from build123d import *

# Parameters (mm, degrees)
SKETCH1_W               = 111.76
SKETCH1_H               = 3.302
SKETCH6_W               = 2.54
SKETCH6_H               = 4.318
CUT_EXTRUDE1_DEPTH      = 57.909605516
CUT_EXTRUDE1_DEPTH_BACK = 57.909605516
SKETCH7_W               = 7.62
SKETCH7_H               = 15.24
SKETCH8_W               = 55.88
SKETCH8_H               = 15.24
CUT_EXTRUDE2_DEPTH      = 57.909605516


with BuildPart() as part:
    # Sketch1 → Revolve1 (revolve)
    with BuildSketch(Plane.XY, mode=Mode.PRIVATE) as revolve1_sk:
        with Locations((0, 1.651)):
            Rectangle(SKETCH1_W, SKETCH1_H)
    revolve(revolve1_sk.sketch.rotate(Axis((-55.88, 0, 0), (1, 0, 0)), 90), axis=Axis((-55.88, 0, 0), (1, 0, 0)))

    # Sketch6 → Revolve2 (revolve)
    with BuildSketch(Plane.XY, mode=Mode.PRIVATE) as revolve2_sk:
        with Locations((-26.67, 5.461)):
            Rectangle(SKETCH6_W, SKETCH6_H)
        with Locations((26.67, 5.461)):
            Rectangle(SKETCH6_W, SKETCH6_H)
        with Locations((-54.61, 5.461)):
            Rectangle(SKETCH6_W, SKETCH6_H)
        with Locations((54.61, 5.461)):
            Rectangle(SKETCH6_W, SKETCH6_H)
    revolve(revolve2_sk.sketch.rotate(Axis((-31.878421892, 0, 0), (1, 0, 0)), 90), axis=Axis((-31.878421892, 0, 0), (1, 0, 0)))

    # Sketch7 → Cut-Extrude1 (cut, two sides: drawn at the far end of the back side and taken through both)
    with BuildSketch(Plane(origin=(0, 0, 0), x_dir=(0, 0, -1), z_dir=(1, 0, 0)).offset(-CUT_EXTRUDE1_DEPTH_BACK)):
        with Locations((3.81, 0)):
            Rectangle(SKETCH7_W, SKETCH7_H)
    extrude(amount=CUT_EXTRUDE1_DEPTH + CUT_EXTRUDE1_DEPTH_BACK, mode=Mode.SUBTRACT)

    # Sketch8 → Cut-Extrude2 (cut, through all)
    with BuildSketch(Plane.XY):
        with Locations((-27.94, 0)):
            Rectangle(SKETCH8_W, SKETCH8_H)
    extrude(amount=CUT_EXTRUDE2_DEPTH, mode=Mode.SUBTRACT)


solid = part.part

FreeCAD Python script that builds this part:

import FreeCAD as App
import Part
import Sketcher

V = App.Vector
Q = App.Units.Quantity


def add_polygon(sketch, points):
    """Adds a closed chain of lines whose ends are joined by coincident constraints."""
    first, n = sketch.GeometryCount, len(points)
    for a, b in zip(points, points[1:] + points[:1]):
        sketch.addGeometry(Part.LineSegment(App.Vector(*a, 0), App.Vector(*b, 0)), False)
    for i in range(n):
        sketch.addConstraint(Sketcher.Constraint("Coincident", first + i, 2, first + (i + 1) % n, 1))

doc = App.newDocument("Part")
body = doc.addObject("PartDesign::Body", "Body")

# Sketch on XY plane
sketch1 = body.newObject("Sketcher::SketchObject", "Sketch")
sketch1.AttachmentSupport = (doc.getObject("XY_Plane"), [""])
sketch1.MapMode = "FlatFace"
add_polygon(sketch1, [(-55.9, 3.3), (-55.9, 0), (55.9, 0), (55.9, 3.3)])  # lines 0-3
sketch1.addConstraint(Sketcher.Constraint("Vertical", 0))
sketch1.addConstraint(Sketcher.Constraint("Horizontal", 1))
sketch1.addConstraint(Sketcher.Constraint("Vertical", 2))
sketch1.addConstraint(Sketcher.Constraint("Horizontal", 3))
sketch1.addConstraint(Sketcher.Constraint("Symmetric", 0, 2, 1, 2, -1, 1))
sketch1.addConstraint(Sketcher.Constraint("DistanceX", 1, 1, 1, 2, Q("4.4 in")))
sketch1.addConstraint(Sketcher.Constraint("DistanceY", 0, 2, 0, 1, Q("0.13 in")))
revolution = body.newObject("PartDesign::Revolution", "Revolution")
revolution.Profile = sketch1
revolution.ReferenceAxis = (sketch1, ["H_Axis"])
revolution.Angle = 360

# Sketch on XY plane
sketch2 = body.newObject("Sketcher::SketchObject", "Sketch001")
sketch2.AttachmentSupport = (doc.getObject("XY_Plane"), [""])
sketch2.MapMode = "FlatFace"
add_polygon(sketch2, [(-27.9, 7.6), (-27.9, 3.3), (-25.4, 3.3), (-25.4, 7.6)])  # lines 0-3
add_polygon(sketch2, [(25.4, 7.6), (25.4, 3.3), (27.9, 3.3), (27.9, 7.6)])  # lines 4-7
add_polygon(sketch2, [(-55.9, 7.6), (-55.9, 3.3), (-53.3, 3.3), (-53.3, 7.6)])  # lines 8-11
add_polygon(sketch2, [(53.3, 7.6), (53.3, 3.3), (55.9, 3.3), (55.9, 7.6)])  # lines 12-15
sketch2.addConstraint(Sketcher.Constraint("Vertical", 0))
sketch2.addConstraint(Sketcher.Constraint("Horizontal", 1))
sketch2.addConstraint(Sketcher.Constraint("Vertical", 2))
sketch2.addConstraint(Sketcher.Constraint("Horizontal", 3))
sketch2.addConstraint(Sketcher.Constraint("Vertical", 4))
sketch2.addConstraint(Sketcher.Constraint("Horizontal", 5))
sketch2.addConstraint(Sketcher.Constraint("Vertical", 6))
sketch2.addConstraint(Sketcher.Constraint("Horizontal", 7))
sketch2.addConstraint(Sketcher.Constraint("Vertical", 8))
sketch2.addConstraint(Sketcher.Constraint("Horizontal", 9))
sketch2.addConstraint(Sketcher.Constraint("Vertical", 10))
sketch2.addConstraint(Sketcher.Constraint("Horizontal", 11))
sketch2.addConstraint(Sketcher.Constraint("Vertical", 12))
sketch2.addConstraint(Sketcher.Constraint("Horizontal", 13))
sketch2.addConstraint(Sketcher.Constraint("Vertical", 14))
sketch2.addConstraint(Sketcher.Constraint("Horizontal", 15))
sketch2.addConstraint(Sketcher.Constraint("Symmetric", 1, 2, 4, 2, -2))
sketch2.addConstraint(Sketcher.Constraint("Symmetric", 3, 2, 6, 2, -2))
sketch2.addConstraint(Sketcher.Constraint("Symmetric", 9, 2, 12, 2, -2))
sketch2.addConstraint(Sketcher.Constraint("Symmetric", 11, 2, 14, 2, -2))
sketch2.addConstraint(Sketcher.Constraint("Horizontal", 5, 2, 8, 2))
sketch2.addConstraint(Sketcher.Constraint("Horizontal", 7, 2, 10, 2))
sketch2.addConstraint(Sketcher.Constraint("Equal", 7, 9))
sketch2.addConstraint(Sketcher.Constraint("DistanceX", 1, 1, 1, 2, Q("0.1 in")))
sketch2.addConstraint(Sketcher.Constraint("DistanceX", 1, 2, -1, 1, Q("1 in")))
sketch2.addConstraint(Sketcher.Constraint("DistanceX", 9, 2, 0, 2, Q("1 in")))
sketch2.addConstraint(Sketcher.Constraint("DistanceY", 0, 2, 0, 1, Q("0.17 in")))
sketch2.addConstraint(Sketcher.Constraint("DistanceY", -1, 1, 2, 2, Q("0.3 in")))
revolution2 = body.newObject("PartDesign::Revolution", "Revolution001")
revolution2.Profile = sketch2
revolution2.ReferenceAxis = (sketch2, ["H_Axis"])
revolution2.Angle = 360

# Sketch on YZ plane
sketch3 = body.newObject("Sketcher::SketchObject", "Sketch002")
sketch3.AttachmentSupport = (doc.getObject("YZ_Plane"), [""])
sketch3.MapMode = "FlatFace"
add_polygon(sketch3, [(8, 0), (-8, 0), (-8, -8), (8, -8)])  # lines 0-3
sketch3.addConstraint(Sketcher.Constraint("Horizontal", 0))
sketch3.addConstraint(Sketcher.Constraint("Vertical", 1))
sketch3.addConstraint(Sketcher.Constraint("Horizontal", 2))
sketch3.addConstraint(Sketcher.Constraint("Vertical", 3))
sketch3.addConstraint(Sketcher.Constraint("Symmetric", 0, 2, 3, 2, -1, 1))
sketch3.addConstraint(Sketcher.Constraint("DistanceX", 0, 2, 0, 1, Q("0.6 in")))
sketch3.addConstraint(Sketcher.Constraint("DistanceY", 1, 2, 1, 1, Q("0.3 in")))
pocket1 = body.newObject("PartDesign::Pocket", "Pocket")
pocket1.Profile = sketch3
pocket1.Type = "ThroughAll"
pocket1.Midplane = True

# Sketch on XY plane
sketch4 = body.newObject("Sketcher::SketchObject", "Sketch003")
sketch4.AttachmentSupport = (doc.getObject("XY_Plane"), [""])
sketch4.MapMode = "FlatFace"
add_polygon(sketch4, [(-56, 8), (-56, -8), (0, -8), (0, 8)])  # lines 0-3
sketch4.addConstraint(Sketcher.Constraint("Vertical", 0))
sketch4.addConstraint(Sketcher.Constraint("Horizontal", 1))
sketch4.addConstraint(Sketcher.Constraint("Vertical", 2))
sketch4.addConstraint(Sketcher.Constraint("Horizontal", 3))
sketch4.addConstraint(Sketcher.Constraint("Symmetric", 1, 2, 2, 2, -1, 1))
sketch4.addConstraint(Sketcher.Constraint("DistanceX", 1, 1, 1, 2, Q("2.2 in")))
sketch4.addConstraint(Sketcher.Constraint("DistanceY", 0, 2, 0, 1, Q("0.6 in")))
pocket2 = body.newObject("PartDesign::Pocket", "Pocket001")
pocket2.Profile = sketch4
pocket2.Type = "ThroughAll"
pocket2.Reversed = True

doc.recompute()
